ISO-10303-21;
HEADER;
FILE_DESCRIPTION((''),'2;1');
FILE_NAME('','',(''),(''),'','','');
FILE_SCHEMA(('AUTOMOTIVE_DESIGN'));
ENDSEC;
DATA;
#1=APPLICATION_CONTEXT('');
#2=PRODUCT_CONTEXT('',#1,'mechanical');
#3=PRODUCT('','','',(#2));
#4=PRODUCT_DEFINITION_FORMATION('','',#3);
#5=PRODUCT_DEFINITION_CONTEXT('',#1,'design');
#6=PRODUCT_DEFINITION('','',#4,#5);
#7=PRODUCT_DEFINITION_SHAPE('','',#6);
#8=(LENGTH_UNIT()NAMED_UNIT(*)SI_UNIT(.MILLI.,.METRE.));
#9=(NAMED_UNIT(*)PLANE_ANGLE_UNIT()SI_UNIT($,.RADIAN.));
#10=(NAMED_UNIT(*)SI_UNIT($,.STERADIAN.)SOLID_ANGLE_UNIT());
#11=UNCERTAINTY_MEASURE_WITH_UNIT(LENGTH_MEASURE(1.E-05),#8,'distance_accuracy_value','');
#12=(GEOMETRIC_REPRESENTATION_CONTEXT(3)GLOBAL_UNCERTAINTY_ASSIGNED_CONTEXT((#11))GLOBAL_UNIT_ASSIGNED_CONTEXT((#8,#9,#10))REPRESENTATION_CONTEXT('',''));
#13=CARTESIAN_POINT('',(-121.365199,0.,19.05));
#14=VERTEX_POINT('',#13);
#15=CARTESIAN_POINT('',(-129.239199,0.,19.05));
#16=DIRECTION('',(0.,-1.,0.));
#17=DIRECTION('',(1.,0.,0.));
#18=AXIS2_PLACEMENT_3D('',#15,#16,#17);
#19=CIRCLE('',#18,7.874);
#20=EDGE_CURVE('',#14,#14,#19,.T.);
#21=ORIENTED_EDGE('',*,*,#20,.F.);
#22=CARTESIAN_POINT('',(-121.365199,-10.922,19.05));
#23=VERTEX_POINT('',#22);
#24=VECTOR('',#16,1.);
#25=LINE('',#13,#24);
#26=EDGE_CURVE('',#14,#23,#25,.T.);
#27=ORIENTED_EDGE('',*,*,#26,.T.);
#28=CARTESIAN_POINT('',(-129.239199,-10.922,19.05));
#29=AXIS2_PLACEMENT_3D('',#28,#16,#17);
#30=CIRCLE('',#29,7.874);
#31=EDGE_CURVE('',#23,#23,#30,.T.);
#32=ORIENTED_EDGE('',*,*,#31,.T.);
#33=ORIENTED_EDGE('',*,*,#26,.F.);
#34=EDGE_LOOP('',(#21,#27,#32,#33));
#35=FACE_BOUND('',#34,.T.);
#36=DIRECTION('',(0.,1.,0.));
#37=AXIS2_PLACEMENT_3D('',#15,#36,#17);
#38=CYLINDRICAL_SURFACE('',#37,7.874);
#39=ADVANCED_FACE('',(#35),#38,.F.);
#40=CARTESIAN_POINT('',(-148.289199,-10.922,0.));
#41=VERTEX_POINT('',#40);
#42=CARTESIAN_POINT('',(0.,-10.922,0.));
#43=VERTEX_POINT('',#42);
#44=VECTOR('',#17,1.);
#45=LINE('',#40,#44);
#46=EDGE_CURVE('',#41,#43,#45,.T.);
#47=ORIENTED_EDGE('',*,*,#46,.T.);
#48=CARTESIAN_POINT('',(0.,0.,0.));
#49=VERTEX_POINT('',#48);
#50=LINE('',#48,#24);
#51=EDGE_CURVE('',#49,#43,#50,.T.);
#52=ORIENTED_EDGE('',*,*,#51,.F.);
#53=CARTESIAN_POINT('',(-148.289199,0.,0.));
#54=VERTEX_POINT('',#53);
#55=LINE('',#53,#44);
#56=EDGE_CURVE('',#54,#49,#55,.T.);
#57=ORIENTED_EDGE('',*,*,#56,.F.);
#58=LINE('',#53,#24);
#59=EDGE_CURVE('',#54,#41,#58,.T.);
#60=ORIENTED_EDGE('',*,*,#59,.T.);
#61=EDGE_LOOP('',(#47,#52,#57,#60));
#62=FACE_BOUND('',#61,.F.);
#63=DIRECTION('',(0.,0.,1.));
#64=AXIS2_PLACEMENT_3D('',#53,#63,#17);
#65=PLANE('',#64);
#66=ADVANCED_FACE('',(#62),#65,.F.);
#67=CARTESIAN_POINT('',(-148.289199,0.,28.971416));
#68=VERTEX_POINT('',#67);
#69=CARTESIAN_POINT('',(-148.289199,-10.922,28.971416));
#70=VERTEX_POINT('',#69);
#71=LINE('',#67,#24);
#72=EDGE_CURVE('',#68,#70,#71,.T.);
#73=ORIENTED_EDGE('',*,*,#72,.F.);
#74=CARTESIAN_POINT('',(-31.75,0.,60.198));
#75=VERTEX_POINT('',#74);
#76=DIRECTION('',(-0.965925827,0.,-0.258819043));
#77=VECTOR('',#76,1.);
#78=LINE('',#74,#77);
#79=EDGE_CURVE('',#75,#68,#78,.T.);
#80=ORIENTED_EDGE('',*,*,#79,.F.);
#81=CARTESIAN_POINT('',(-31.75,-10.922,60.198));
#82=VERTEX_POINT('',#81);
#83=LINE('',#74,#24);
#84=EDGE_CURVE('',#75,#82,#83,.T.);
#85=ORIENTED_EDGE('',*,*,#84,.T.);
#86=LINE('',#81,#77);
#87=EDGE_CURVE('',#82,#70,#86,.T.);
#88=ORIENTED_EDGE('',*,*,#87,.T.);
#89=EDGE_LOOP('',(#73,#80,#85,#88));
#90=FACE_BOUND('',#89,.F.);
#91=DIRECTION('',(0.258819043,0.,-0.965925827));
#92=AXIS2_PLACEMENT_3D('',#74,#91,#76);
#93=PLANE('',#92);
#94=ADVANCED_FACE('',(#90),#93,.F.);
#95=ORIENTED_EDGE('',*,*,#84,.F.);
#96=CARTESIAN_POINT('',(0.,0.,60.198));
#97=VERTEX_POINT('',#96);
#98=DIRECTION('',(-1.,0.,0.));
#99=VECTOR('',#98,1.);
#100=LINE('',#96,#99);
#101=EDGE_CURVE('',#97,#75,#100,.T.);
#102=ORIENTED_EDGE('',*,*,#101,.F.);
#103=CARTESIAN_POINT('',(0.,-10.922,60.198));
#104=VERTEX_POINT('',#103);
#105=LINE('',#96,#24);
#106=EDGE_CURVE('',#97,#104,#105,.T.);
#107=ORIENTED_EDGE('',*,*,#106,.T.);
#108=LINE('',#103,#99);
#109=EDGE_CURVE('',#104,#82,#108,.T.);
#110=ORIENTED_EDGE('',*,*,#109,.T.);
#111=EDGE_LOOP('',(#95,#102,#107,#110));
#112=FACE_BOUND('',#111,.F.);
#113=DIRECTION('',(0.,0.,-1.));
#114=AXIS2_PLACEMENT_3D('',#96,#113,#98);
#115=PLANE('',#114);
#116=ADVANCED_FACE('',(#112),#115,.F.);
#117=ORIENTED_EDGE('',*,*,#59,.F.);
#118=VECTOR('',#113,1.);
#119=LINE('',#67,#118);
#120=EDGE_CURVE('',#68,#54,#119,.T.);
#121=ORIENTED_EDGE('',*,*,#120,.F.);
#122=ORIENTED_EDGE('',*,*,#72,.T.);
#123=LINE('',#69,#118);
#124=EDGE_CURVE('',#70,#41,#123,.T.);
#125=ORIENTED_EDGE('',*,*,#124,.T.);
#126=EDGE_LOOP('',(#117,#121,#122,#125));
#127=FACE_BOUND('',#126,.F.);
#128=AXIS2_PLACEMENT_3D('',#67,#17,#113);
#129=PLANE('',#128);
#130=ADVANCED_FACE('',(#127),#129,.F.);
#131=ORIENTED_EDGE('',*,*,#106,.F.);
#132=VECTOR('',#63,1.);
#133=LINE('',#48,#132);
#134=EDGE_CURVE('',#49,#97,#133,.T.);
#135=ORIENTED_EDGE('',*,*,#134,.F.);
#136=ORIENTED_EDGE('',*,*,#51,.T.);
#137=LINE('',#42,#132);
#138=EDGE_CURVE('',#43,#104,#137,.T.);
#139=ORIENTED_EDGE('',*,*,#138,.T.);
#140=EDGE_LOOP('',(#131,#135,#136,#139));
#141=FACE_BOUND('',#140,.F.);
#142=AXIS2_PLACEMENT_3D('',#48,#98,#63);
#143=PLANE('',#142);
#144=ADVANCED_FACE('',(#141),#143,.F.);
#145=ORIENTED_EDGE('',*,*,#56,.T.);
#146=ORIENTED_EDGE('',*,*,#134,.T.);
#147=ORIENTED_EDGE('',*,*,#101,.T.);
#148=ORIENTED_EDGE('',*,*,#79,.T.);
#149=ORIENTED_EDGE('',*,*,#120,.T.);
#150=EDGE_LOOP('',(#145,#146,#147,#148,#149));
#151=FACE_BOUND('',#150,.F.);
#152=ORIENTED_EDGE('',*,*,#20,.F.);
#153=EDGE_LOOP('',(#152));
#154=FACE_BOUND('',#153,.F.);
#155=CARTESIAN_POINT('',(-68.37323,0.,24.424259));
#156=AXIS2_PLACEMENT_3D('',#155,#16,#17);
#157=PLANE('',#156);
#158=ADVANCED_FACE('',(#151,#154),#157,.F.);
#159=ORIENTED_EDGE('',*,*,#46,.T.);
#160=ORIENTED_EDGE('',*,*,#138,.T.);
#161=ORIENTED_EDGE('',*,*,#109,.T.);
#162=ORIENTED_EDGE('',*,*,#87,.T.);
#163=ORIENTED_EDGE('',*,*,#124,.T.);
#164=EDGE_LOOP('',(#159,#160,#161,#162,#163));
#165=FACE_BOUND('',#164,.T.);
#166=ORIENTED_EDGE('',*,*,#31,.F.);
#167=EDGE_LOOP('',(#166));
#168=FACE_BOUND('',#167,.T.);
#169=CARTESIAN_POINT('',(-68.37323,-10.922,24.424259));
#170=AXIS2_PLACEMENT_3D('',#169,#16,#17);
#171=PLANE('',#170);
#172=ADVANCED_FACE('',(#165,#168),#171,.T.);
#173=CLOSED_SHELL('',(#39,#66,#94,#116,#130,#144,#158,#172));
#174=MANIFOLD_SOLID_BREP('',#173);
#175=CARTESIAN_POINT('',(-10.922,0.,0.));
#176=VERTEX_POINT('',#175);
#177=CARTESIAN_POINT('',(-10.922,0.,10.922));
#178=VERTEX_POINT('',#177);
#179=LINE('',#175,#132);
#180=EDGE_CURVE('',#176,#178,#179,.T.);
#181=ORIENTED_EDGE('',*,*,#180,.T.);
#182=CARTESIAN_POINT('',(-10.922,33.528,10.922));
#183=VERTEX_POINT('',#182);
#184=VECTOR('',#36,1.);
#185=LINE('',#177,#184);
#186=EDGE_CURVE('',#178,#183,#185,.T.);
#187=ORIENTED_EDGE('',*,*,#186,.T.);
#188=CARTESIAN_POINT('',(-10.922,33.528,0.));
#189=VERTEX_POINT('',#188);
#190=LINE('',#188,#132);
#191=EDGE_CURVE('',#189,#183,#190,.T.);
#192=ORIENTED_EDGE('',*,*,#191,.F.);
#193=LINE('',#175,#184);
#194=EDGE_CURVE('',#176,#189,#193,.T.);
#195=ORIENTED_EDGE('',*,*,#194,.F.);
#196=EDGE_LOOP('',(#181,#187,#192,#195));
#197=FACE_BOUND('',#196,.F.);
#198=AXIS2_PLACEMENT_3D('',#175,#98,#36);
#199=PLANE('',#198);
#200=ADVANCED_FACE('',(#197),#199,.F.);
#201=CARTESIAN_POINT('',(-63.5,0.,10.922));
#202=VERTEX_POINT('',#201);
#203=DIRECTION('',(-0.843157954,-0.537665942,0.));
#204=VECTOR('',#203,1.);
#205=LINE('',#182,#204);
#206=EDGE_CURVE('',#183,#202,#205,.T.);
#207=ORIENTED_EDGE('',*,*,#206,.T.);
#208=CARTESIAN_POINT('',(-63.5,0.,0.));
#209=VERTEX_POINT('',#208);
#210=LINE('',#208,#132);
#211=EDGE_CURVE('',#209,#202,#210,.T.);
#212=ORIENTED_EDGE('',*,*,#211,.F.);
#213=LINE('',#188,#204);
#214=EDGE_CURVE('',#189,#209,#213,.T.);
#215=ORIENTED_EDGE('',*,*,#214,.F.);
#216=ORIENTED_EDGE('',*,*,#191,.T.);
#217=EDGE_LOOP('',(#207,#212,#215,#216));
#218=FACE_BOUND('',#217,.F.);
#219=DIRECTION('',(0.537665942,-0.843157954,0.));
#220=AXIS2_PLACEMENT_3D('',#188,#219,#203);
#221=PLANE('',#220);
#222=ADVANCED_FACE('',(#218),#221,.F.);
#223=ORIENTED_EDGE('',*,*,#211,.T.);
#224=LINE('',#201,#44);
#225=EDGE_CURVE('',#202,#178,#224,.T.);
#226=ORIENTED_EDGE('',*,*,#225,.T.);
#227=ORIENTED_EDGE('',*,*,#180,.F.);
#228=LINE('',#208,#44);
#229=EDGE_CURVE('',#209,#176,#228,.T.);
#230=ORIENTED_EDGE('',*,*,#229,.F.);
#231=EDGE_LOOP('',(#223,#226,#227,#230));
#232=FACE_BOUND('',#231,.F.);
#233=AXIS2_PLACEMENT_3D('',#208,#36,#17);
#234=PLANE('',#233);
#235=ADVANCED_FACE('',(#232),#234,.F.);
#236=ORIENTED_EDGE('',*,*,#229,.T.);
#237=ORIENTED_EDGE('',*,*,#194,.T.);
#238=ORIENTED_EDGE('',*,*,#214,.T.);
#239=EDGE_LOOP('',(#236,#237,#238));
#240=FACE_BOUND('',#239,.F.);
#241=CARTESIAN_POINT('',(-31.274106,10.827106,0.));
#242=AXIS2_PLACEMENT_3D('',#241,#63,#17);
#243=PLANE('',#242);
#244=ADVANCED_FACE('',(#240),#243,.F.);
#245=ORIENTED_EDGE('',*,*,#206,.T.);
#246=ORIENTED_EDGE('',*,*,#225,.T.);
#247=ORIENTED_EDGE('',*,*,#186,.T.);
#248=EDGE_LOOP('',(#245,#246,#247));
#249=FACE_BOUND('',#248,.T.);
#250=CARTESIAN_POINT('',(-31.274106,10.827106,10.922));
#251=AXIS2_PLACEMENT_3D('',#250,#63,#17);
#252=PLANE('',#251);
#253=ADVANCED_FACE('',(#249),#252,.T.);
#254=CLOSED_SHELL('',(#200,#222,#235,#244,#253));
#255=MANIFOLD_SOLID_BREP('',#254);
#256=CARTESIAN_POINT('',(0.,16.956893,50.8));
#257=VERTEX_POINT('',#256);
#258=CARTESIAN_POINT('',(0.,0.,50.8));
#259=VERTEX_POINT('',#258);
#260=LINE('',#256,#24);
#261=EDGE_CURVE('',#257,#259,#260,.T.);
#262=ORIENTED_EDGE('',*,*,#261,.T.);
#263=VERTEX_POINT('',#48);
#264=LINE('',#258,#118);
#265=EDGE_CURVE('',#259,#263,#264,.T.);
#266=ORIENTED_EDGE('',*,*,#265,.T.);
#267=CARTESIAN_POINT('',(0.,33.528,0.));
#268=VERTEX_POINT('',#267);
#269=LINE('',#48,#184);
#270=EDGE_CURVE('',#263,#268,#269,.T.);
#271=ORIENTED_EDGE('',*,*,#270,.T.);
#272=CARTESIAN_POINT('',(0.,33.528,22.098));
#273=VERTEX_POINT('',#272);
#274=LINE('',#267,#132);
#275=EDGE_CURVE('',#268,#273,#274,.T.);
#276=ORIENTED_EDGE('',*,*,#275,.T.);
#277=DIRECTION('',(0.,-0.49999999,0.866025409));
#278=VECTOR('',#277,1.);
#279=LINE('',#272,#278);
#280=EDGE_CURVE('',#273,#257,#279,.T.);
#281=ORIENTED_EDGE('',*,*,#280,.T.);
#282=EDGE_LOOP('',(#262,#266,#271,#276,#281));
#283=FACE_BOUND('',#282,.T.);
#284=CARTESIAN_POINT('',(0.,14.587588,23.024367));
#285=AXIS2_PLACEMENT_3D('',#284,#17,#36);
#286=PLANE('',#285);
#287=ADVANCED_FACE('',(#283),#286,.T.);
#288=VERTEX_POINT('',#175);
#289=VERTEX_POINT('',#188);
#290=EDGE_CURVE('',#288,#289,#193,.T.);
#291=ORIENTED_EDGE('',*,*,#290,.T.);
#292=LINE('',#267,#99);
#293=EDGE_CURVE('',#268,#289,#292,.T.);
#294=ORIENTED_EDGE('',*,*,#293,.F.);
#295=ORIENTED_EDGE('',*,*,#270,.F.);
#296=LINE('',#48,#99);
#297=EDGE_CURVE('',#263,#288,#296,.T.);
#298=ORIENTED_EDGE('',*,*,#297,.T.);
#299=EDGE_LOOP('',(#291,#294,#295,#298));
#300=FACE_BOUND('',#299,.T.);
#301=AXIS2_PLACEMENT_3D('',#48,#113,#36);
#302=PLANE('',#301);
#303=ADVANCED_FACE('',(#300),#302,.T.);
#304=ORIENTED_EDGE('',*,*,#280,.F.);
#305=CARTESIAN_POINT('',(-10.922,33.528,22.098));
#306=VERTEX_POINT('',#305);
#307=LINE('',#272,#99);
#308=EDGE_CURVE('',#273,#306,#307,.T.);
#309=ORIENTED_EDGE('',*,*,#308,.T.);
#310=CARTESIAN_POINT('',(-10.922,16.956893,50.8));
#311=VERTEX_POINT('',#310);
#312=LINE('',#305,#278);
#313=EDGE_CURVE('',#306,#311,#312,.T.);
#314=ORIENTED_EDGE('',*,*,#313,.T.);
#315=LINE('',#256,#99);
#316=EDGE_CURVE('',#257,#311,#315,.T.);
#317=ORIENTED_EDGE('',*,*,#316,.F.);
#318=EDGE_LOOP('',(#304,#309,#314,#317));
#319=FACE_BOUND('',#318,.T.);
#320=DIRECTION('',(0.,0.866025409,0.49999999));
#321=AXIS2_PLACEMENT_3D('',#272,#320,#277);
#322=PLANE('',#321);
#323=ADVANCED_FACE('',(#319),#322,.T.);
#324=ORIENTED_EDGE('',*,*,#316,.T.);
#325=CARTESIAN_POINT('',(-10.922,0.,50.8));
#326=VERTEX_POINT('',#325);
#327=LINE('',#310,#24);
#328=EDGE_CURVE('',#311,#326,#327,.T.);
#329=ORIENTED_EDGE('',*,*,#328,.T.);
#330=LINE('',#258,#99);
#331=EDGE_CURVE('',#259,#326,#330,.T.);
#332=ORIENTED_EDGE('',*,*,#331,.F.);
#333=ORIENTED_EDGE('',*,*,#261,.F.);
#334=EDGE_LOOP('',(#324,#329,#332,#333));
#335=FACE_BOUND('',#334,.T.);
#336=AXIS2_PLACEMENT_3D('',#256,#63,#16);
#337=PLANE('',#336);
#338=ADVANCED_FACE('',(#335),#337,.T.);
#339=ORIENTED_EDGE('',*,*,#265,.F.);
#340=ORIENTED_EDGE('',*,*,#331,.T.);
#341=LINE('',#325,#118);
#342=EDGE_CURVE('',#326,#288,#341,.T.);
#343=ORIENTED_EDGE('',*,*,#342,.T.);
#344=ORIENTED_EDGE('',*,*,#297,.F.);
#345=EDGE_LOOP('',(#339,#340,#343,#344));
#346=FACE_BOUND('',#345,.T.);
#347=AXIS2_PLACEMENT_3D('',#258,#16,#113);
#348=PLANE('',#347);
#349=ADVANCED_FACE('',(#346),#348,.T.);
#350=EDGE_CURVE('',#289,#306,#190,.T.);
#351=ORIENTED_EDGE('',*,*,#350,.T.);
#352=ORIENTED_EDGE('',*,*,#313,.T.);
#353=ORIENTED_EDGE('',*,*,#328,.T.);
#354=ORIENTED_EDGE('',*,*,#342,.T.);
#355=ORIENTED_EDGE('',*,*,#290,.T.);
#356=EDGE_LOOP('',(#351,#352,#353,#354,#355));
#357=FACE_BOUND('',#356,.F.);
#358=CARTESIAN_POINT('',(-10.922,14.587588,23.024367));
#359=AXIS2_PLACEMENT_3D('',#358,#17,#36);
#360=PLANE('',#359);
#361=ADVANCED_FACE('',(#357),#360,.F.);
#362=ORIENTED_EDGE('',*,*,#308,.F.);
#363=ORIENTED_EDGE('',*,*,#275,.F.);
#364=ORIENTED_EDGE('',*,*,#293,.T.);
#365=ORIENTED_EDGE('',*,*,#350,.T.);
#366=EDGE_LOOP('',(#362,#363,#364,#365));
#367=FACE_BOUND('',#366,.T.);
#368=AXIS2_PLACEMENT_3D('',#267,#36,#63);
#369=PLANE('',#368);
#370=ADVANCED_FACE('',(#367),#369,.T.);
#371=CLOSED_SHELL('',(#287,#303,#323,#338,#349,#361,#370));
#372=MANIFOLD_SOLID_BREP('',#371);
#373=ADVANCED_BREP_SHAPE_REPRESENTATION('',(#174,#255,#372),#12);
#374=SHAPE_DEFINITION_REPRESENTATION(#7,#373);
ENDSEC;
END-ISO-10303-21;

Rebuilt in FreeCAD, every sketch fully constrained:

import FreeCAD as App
import Part
import Sketcher
from FreeCAD import Vector
Q = App.Units.Quantity


def add_polygon(sketch, points):
    """Adds a closed chain of lines whose ends are joined by coincident constraints."""
    first, n = sketch.GeometryCount, len(points)
    for a, b in zip(points, points[1:] + points[:1]):
        sketch.addGeometry(Part.LineSegment(App.Vector(*a, 0), App.Vector(*b, 0)), False)
    for i in range(n):
        sketch.addConstraint(Sketcher.Constraint("Coincident", first + i, 2, first + (i + 1) % n, 1))

doc = App.newDocument("Part")
body = doc.addObject("PartDesign::Body", "Body")

sketch1 = body.newObject("Sketcher::SketchObject", "Sketch")
sketch1.AttachmentSupport = (doc.getObject("XZ_Plane"), [""])
sketch1.MapMode = "FlatFace"
add_polygon(sketch1, [(-148.289199, 0), (0, 0), (0, 60.198), (-31.75, 60.198), (-148.289199, 28.971416)])
sketch1.addGeometry(Part.Circle(Vector(-129.239199, 19.05, 0), Vector(0, 0, 1), 7.874), False)
sketch1.addConstraint(Sketcher.Constraint("Horizontal", 0))
sketch1.addConstraint(Sketcher.Constraint("Vertical", 1))
sketch1.addConstraint(Sketcher.Constraint("Horizontal", 2))
sketch1.addConstraint(Sketcher.Constraint("Vertical", 4))
sketch1.addConstraint(Sketcher.Constraint("Coincident", 0, 2, -1, 1))
sketch1.addConstraint(Sketcher.Constraint("Diameter", 5, Q("0.62 in")))
sketch1.addConstraint(Sketcher.Constraint("Angle", 3, Q("-165 deg")))
sketch1.addConstraint(Sketcher.Constraint("DistanceX", 2, 2, 2, 1, Q("1.25 in")))
sketch1.addConstraint(Sketcher.Constraint("DistanceY", 1, 1, 1, 2, Q("2.37 in")))
sketch1.addConstraint(Sketcher.Constraint("DistanceY", -1, 1, 5, 3, Q("0.75 in")))
sketch1.addConstraint(Sketcher.Constraint("DistanceX", 3, 2, 5, 3, Q("0.75 in")))
sketch1.addConstraint(Sketcher.Constraint("DistanceX", 0, 1, 0, 2, 148.289199))
pad1 = body.newObject("PartDesign::Pad", "Pad")
pad1.Profile = sketch1
pad1.Length = Q("0.43 in")
body2 = doc.addObject("PartDesign::Body", "Body001")

sketch2 = body2.newObject("Sketcher::SketchObject", "Sketch001")
sketch2.AttachmentSupport = (doc.getObject("YZ_Plane001"), [""])
sketch2.MapMode = "FlatFace"
add_polygon(sketch2, [(0, 50.8), (0, 0), (33.528, 0), (33.528, 22.098), (16.956893, 50.8)])
sketch2.addConstraint(Sketcher.Constraint("Vertical", 0))
sketch2.addConstraint(Sketcher.Constraint("Horizontal", 1))
sketch2.addConstraint(Sketcher.Constraint("Vertical", 2))
sketch2.addConstraint(Sketcher.Constraint("Horizontal", 4))
sketch2.addConstraint(Sketcher.Constraint("Coincident", 0, 2, -1, 1))
sketch2.addConstraint(Sketcher.Constraint("DistanceY", 0, 2, 0, 1, Q("2 in")))
sketch2.addConstraint(Sketcher.Constraint("Angle", 3, Q("119.999999 deg")))
sketch2.addConstraint(Sketcher.Constraint("DistanceX", 1, 1, 1, 2, Q("1.32 in")))
sketch2.addConstraint(Sketcher.Constraint("DistanceY", 2, 1, 2, 2, Q("0.87 in")))
pad2 = body2.newObject("PartDesign::Pad", "Pad001")
pad2.Profile = sketch2
pad2.Length = Q("0.43 in")
pad2.Reversed = True
body3 = doc.addObject("PartDesign::Body", "Body002")

sketch3 = body3.newObject("Sketcher::SketchObject", "Sketch002")
sketch3.AttachmentSupport = (doc.getObject("XY_Plane002"), [""])
sketch3.MapMode = "FlatFace"
add_polygon(sketch3, [(-63.5, 0), (-10.922, 0), (-10.922, 33.528)])
sketch3.addConstraint(Sketcher.Constraint("Horizontal", 0))
sketch3.addConstraint(Sketcher.Constraint("Vertical", 1))
sketch3.addConstraint(Sketcher.Constraint("PointOnObject", 0, 2, -1))
sketch3.addConstraint(Sketcher.Constraint("DistanceX", 0, 1, 0, 2, Q("2.07 in")))
sketch3.addConstraint(Sketcher.Constraint("DistanceY", 1, 1, 1, 2, Q("1.32 in")))
sketch3.addConstraint(Sketcher.Constraint("DistanceX", 2, 2, -1, 1, Q("2.5 in")))
pad3 = body3.newObject("PartDesign::Pad", "Pad002")
pad3.Profile = sketch3
pad3.Length = Q("0.43 in")

doc.recompute()
